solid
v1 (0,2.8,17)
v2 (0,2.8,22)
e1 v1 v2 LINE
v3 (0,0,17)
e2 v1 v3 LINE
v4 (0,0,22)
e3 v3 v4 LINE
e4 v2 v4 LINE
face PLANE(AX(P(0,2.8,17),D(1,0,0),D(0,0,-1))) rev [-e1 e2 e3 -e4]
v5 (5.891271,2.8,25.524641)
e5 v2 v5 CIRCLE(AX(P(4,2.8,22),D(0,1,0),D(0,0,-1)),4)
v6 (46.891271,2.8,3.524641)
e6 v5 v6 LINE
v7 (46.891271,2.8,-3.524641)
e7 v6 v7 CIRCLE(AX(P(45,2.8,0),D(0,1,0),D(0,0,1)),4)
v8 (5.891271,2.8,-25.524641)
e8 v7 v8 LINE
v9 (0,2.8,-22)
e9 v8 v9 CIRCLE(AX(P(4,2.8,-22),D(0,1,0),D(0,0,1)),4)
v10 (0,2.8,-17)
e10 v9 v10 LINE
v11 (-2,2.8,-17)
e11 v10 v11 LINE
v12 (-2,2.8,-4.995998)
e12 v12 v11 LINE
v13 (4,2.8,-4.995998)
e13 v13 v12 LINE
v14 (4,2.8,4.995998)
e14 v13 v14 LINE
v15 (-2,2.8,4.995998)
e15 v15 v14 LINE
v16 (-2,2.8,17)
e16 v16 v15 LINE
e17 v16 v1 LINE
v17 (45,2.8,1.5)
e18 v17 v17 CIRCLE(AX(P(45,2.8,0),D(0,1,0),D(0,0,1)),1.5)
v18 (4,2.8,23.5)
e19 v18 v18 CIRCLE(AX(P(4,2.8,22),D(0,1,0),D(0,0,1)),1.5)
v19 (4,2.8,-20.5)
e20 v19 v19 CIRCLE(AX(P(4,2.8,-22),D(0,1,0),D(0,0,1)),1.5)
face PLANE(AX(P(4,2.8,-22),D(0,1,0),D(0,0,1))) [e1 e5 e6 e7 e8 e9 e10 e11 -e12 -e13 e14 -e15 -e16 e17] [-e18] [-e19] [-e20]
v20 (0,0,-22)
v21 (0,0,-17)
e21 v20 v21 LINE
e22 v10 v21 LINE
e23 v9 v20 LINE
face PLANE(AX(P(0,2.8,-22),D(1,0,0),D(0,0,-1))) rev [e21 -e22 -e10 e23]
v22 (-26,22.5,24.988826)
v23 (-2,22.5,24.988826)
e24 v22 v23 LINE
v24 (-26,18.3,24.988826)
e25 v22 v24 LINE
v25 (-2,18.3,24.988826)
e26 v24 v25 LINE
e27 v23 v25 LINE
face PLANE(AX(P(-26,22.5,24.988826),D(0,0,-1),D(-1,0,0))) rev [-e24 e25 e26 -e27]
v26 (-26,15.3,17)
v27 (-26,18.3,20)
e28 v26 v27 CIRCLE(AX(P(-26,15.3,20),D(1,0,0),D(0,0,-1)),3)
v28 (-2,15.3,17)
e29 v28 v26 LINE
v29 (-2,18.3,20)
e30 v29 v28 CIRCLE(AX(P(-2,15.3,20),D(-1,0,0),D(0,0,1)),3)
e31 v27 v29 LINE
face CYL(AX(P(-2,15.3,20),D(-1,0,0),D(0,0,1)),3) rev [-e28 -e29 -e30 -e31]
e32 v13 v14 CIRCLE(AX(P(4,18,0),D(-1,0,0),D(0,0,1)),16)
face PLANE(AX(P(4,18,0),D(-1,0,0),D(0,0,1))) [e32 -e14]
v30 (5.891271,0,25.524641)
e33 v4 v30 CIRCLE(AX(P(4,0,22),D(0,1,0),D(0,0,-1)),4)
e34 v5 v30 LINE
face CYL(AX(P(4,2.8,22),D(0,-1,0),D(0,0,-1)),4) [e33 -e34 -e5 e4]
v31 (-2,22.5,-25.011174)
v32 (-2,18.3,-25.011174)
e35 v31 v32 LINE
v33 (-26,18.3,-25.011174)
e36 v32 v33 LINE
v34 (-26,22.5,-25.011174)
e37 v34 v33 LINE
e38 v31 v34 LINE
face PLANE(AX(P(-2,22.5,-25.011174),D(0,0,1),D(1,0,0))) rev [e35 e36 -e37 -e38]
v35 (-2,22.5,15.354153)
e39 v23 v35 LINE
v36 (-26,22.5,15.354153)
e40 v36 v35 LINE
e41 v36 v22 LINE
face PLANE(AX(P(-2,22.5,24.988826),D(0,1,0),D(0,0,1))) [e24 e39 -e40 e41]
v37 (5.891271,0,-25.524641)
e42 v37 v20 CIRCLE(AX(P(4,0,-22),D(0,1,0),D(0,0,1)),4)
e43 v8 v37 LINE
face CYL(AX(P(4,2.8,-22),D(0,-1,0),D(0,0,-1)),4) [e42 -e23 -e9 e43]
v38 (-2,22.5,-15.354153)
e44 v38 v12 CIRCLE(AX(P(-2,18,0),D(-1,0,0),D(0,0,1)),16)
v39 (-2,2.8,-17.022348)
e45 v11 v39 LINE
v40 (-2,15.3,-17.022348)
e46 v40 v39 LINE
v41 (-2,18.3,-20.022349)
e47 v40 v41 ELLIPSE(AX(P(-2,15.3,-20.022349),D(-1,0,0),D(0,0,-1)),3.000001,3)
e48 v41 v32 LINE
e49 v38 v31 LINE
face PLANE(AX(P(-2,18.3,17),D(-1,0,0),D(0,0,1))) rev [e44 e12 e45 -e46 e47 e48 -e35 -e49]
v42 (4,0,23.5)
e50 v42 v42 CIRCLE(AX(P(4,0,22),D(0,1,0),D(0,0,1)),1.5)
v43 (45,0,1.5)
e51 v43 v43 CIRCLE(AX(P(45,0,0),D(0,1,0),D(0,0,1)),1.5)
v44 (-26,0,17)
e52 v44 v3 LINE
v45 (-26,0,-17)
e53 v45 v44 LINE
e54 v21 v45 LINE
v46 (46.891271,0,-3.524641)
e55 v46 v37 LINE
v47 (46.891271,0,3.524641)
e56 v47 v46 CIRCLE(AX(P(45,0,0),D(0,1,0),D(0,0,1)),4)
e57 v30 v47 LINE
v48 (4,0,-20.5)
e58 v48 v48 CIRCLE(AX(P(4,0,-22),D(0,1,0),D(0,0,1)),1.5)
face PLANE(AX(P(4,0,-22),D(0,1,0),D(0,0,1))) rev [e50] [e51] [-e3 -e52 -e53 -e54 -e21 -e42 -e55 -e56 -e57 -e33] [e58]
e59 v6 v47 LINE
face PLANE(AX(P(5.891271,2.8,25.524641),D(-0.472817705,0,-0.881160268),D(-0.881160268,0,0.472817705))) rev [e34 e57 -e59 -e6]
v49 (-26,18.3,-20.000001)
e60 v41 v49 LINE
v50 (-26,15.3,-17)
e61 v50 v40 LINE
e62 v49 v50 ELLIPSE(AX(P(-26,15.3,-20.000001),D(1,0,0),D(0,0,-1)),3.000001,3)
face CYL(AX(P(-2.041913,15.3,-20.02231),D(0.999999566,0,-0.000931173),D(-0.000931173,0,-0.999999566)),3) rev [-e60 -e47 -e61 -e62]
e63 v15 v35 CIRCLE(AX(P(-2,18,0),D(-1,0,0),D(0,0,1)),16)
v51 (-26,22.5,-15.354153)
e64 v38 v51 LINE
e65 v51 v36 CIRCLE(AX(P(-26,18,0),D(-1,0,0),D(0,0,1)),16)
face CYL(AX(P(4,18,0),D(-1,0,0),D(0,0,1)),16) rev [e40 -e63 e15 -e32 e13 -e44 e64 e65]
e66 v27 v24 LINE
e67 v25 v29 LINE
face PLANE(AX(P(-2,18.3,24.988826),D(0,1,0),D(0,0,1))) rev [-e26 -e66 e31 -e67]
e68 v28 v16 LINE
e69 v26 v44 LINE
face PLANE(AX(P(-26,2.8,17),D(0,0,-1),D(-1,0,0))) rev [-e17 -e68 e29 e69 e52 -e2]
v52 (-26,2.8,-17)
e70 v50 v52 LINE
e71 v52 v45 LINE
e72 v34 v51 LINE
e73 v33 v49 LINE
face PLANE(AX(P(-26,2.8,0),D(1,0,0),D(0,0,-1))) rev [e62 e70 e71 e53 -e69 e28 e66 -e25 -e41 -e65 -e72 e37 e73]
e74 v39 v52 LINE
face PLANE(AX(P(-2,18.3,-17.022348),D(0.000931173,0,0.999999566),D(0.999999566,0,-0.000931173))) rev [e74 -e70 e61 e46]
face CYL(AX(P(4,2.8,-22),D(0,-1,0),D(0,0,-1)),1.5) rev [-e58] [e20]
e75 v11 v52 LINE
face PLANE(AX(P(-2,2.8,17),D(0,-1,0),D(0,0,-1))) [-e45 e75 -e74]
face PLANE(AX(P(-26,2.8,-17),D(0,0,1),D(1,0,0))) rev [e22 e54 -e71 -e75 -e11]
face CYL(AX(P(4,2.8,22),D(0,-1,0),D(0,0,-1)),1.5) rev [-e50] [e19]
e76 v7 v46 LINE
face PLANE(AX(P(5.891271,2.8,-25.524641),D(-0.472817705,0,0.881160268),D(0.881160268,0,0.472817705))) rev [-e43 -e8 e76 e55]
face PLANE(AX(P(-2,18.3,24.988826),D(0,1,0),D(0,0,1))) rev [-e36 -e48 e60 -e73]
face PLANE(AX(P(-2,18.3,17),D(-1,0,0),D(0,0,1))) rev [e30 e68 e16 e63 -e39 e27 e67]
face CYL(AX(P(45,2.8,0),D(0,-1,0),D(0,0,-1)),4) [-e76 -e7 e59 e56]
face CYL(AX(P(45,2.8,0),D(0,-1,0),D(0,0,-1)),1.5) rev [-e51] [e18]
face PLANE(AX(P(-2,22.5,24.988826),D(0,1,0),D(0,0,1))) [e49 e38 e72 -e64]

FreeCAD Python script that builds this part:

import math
import FreeCAD as App
import Part
import Sketcher
Q = App.Units.Quantity


def edges_at(feature, points):
    """Names of the edges that pass closest to the given points."""
    edges = feature.Shape.Edges
    near = lambda p: min(range(len(edges)), key=lambda i: edges[i].distToShape(Part.Vertex(*p))[0])
    return sorted({f"Edge{near(p) + 1}" for p in points})

doc = App.newDocument("Part")
body = doc.addObject("PartDesign::Body", "Body")

# Sketch on XZ plane
sketch1 = body.newObject("Sketcher::SketchObject", "Sketch")
sketch1.AttachmentSupport = (doc.getObject("XZ_Plane"), [""])
sketch1.MapMode = "FlatFace"
sketch1.addGeometry(Part.LineSegment(App.Vector(0, -22, 0), App.Vector(0, -17, 0)), False)
sketch1.addGeometry(Part.LineSegment(App.Vector(0, -17, 0), App.Vector(-26, -17, 0)), False)
sketch1.addGeometry(Part.LineSegment(App.Vector(-26, -17, 0), App.Vector(-26, 17, 0)), False)
sketch1.addGeometry(Part.LineSegment(App.Vector(-26, 17, 0), App.Vector(0, 17, 0)), False)
sketch1.addGeometry(Part.LineSegment(App.Vector(0, 17, 0), App.Vector(0, 22, 0)), False)
sketch1.addGeometry(Part.ArcOfCircle(Part.Circle(App.Vector(4, 22, 0), App.Vector(0, 0, 1), 4), math.radians(62), math.radians(180)), False)
sketch1.addGeometry(Part.LineSegment(App.Vector(5.9, 25.5, 0), App.Vector(46.9, 3.5, 0)), False)
sketch1.addGeometry(Part.ArcOfCircle(Part.Circle(App.Vector(45, 0, 0), App.Vector(0, 0, 1), 4), math.radians(-62), math.radians(62)), False)
sketch1.addGeometry(Part.LineSegment(App.Vector(46.9, -3.5, 0), App.Vector(5.9, -25.5, 0)), False)
sketch1.addGeometry(Part.ArcOfCircle(Part.Circle(App.Vector(4, -22, 0), App.Vector(0, 0, 1), 4), math.radians(180), math.radians(298)), False)
sketch1.addGeometry(Part.Circle(App.Vector(4, 22, 0), App.Vector(0, 0, 1), 1.5), False)
sketch1.addGeometry(Part.Circle(App.Vector(4, -22, 0), App.Vector(0, 0, 1), 1.5), False)
sketch1.addGeometry(Part.Circle(App.Vector(45, 0, 0), App.Vector(0, 0, 1), 1.5), False)
sketch1.addConstraint(Sketcher.Constraint("Coincident", 0, 2, 1, 1))
sketch1.addConstraint(Sketcher.Constraint("Coincident", 1, 2, 2, 1))
sketch1.addConstraint(Sketcher.Constraint("Coincident", 2, 2, 3, 1))
sketch1.addConstraint(Sketcher.Constraint("Coincident", 3, 2, 4, 1))
sketch1.addConstraint(Sketcher.Constraint("Tangent", 4, 2, 5, 2))
sketch1.addConstraint(Sketcher.Constraint("Tangent", 5, 1, 6, 1))
sketch1.addConstraint(Sketcher.Constraint("Tangent", 6, 2, 7, 2))
sketch1.addConstraint(Sketcher.Constraint("Tangent", 7, 1, 8, 1))
sketch1.addConstraint(Sketcher.Constraint("Tangent", 8, 2, 9, 2))
sketch1.addConstraint(Sketcher.Constraint("Tangent", 9, 1, 0, 1))
sketch1.addConstraint(Sketcher.Constraint("Vertical", 0))
sketch1.addConstraint(Sketcher.Constraint("Horizontal", 1))
sketch1.addConstraint(Sketcher.Constraint("Vertical", 2))
sketch1.addConstraint(Sketcher.Constraint("Horizontal", 3))
sketch1.addConstraint(Sketcher.Constraint("Vertical", 4))
sketch1.addConstraint(Sketcher.Constraint("Coincident", 10, 3, 5, 3))
sketch1.addConstraint(Sketcher.Constraint("Coincident", 11, 3, 9, 3))
sketch1.addConstraint(Sketcher.Constraint("Coincident", 12, 3, 7, 3))
sketch1.addConstraint(Sketcher.Constraint("Equal", 5, 7))
sketch1.addConstraint(Sketcher.Constraint("Equal", 7, 9))
sketch1.addConstraint(Sketcher.Constraint("Equal", 10, 11))
sketch1.addConstraint(Sketcher.Constraint("Equal", 11, 12))
sketch1.addConstraint(Sketcher.Constraint("Symmetric", 0, 2, 3, 2, -1, 1))
sketch1.addConstraint(Sketcher.Constraint("Symmetric", 5, 3, 9, 3, -1))
sketch1.addConstraint(Sketcher.Constraint("PointOnObject", 7, 3, -1))
sketch1.addConstraint(Sketcher.Constraint("Diameter", 10, Q("3 mm")))
sketch1.addConstraint(Sketcher.Constraint("Radius", 5, Q("4 mm")))
sketch1.addConstraint(Sketcher.Constraint("DistanceX", 1, 2, 1, 1, Q("26 mm")))
sketch1.addConstraint(Sketcher.Constraint("DistanceY", 0, 1, 0, 2, Q("5 mm")))
sketch1.addConstraint(Sketcher.Constraint("DistanceY", 2, 1, 2, 2, Q("34 mm")))
sketch1.addConstraint(Sketcher.Constraint("DistanceX", -1, 1, 7, 3, Q("45 mm")))
pad1 = body.newObject("PartDesign::Pad", "Pad")
pad1.Profile = sketch1
pad1.Length = 2.8
pad1.Reversed = True

# Sketch on XZ plane
sketch2 = body.newObject("Sketcher::SketchObject", "Sketch001")
sketch2.AttachmentSupport = (doc.getObject("XZ_Plane"), [""])
sketch2.MapMode = "FlatFace"
sketch2.AttachmentOffset = App.Placement(App.Vector(0, 0, -2.8), App.Rotation())
sketch2.addGeometry(Part.LineSegment(App.Vector(-2, -17, 0), App.Vector(-26, -17, 0)), False)
sketch2.addGeometry(Part.LineSegment(App.Vector(-26, -17, 0), App.Vector(-26, 17, 0)), False)
sketch2.addGeometry(Part.LineSegment(App.Vector(-26, 17, 0), App.Vector(-2, 17, 0)), False)
sketch2.addGeometry(Part.LineSegment(App.Vector(-2, 17, 0), App.Vector(-2, -17, 0)), False)
sketch2.addConstraint(Sketcher.Constraint("Coincident", 0, 2, 1, 1))
sketch2.addConstraint(Sketcher.Constraint("Coincident", 1, 2, 2, 1))
sketch2.addConstraint(Sketcher.Constraint("Coincident", 2, 2, 3, 1))
sketch2.addConstraint(Sketcher.Constraint("Coincident", 3, 2, 0, 1))
sketch2.addConstraint(Sketcher.Constraint("Vertical", 1))
sketch2.addConstraint(Sketcher.Constraint("Horizontal", 2))
sketch2.addConstraint(Sketcher.Constraint("Vertical", 3))
sketch2.addConstraint(Sketcher.Constraint("DistanceX", 2, 1, 2, 2, Q("24 mm")))
sketch2.addConstraint(Sketcher.Constraint("DistanceY", 1, 1, 1, 2, Q("34 mm")))
sketch2.addConstraint(Sketcher.Constraint("DistanceX", 0, 2, -1, 1, Q("26 mm")))
sketch2.addConstraint(Sketcher.Constraint("DistanceY", 0, 2, -1, 1, Q("17 mm")))
sketch2.addConstraint(Sketcher.Constraint("DistanceY", 3, 2, 3, 1, Q("34.022348 mm")))
pad2 = body.newObject("PartDesign::Pad", "Pad001")
pad2.Profile = sketch2
pad2.Length = 15.5
pad2.Reversed = True

# Sketch on XZ plane
sketch3 = body.newObject("Sketcher::SketchObject", "Sketch002")
sketch3.AttachmentSupport = (doc.getObject("XZ_Plane"), [""])
sketch3.MapMode = "FlatFace"
sketch3.AttachmentOffset = App.Placement(App.Vector(0, 0, -18.3), App.Rotation())
sketch3.addGeometry(Part.LineSegment(App.Vector(-26, -25, 0), App.Vector(-26, 25, 0)), False)
sketch3.addGeometry(Part.LineSegment(App.Vector(-26, 25, 0), App.Vector(-2, 25, 0)), False)
sketch3.addGeometry(Part.LineSegment(App.Vector(-2, 25, 0), App.Vector(-2, -25, 0)), False)
sketch3.addGeometry(Part.LineSegment(App.Vector(-2, -25, 0), App.Vector(-26, -25, 0)), False)
sketch3.addConstraint(Sketcher.Constraint("Coincident", 0, 2, 1, 1))
sketch3.addConstraint(Sketcher.Constraint("Coincident", 1, 2, 2, 1))
sketch3.addConstraint(Sketcher.Constraint("Coincident", 2, 2, 3, 1))
sketch3.addConstraint(Sketcher.Constraint("Coincident", 3, 2, 0, 1))
sketch3.addConstraint(Sketcher.Constraint("Vertical", 0))
sketch3.addConstraint(Sketcher.Constraint("Horizontal", 1))
sketch3.addConstraint(Sketcher.Constraint("Vertical", 2))
sketch3.addConstraint(Sketcher.Constraint("Horizontal", 3))
sketch3.addConstraint(Sketcher.Constraint("DistanceX", 1, 1, 1, 2, Q("24 mm")))
sketch3.addConstraint(Sketcher.Constraint("DistanceY", 0, 1, 0, 2, Q("50 mm")))
sketch3.addConstraint(Sketcher.Constraint("DistanceX", 0, 2, -1, 1, Q("26 mm")))
sketch3.addConstraint(Sketcher.Constraint("DistanceY", -1, 1, 0, 2, Q("24.988826 mm")))
pad3 = body.newObject("PartDesign::Pad", "Pad002")
pad3.Profile = sketch3
pad3.Length = 4.2
pad3.Reversed = True

# Sketch on YZ plane
sketch4 = body.newObject("Sketcher::SketchObject", "Sketch003")
sketch4.AttachmentSupport = (doc.getObject("YZ_Plane"), [""])
sketch4.MapMode = "FlatFace"
sketch4.AttachmentOffset = App.Placement(App.Vector(0, 0, -26), App.Rotation())
sketch4.addGeometry(Part.Circle(App.Vector(18, 0, 0), App.Vector(0, 0, 1), 16), False)
sketch4.addConstraint(Sketcher.Constraint("PointOnObject", 0, 3, -1))
sketch4.addConstraint(Sketcher.Constraint("Diameter", 0, Q("32 mm")))
sketch4.addConstraint(Sketcher.Constraint("DistanceX", -1, 1, 0, 3, Q("18 mm")))
pocket1 = body.newObject("PartDesign::Pocket", "Pocket")
pocket1.Profile = sketch4
pocket1.Length = 30
pocket1.Reversed = True
doc.recompute()

fillet = body.newObject("PartDesign::Fillet", "Fillet")
fillet.Base = (pocket1, edges_at(pocket1, [(-14, 18.3, -17.011), (-14, 18.3, 17)]))
fillet.Radius = 3

doc.recompute()
